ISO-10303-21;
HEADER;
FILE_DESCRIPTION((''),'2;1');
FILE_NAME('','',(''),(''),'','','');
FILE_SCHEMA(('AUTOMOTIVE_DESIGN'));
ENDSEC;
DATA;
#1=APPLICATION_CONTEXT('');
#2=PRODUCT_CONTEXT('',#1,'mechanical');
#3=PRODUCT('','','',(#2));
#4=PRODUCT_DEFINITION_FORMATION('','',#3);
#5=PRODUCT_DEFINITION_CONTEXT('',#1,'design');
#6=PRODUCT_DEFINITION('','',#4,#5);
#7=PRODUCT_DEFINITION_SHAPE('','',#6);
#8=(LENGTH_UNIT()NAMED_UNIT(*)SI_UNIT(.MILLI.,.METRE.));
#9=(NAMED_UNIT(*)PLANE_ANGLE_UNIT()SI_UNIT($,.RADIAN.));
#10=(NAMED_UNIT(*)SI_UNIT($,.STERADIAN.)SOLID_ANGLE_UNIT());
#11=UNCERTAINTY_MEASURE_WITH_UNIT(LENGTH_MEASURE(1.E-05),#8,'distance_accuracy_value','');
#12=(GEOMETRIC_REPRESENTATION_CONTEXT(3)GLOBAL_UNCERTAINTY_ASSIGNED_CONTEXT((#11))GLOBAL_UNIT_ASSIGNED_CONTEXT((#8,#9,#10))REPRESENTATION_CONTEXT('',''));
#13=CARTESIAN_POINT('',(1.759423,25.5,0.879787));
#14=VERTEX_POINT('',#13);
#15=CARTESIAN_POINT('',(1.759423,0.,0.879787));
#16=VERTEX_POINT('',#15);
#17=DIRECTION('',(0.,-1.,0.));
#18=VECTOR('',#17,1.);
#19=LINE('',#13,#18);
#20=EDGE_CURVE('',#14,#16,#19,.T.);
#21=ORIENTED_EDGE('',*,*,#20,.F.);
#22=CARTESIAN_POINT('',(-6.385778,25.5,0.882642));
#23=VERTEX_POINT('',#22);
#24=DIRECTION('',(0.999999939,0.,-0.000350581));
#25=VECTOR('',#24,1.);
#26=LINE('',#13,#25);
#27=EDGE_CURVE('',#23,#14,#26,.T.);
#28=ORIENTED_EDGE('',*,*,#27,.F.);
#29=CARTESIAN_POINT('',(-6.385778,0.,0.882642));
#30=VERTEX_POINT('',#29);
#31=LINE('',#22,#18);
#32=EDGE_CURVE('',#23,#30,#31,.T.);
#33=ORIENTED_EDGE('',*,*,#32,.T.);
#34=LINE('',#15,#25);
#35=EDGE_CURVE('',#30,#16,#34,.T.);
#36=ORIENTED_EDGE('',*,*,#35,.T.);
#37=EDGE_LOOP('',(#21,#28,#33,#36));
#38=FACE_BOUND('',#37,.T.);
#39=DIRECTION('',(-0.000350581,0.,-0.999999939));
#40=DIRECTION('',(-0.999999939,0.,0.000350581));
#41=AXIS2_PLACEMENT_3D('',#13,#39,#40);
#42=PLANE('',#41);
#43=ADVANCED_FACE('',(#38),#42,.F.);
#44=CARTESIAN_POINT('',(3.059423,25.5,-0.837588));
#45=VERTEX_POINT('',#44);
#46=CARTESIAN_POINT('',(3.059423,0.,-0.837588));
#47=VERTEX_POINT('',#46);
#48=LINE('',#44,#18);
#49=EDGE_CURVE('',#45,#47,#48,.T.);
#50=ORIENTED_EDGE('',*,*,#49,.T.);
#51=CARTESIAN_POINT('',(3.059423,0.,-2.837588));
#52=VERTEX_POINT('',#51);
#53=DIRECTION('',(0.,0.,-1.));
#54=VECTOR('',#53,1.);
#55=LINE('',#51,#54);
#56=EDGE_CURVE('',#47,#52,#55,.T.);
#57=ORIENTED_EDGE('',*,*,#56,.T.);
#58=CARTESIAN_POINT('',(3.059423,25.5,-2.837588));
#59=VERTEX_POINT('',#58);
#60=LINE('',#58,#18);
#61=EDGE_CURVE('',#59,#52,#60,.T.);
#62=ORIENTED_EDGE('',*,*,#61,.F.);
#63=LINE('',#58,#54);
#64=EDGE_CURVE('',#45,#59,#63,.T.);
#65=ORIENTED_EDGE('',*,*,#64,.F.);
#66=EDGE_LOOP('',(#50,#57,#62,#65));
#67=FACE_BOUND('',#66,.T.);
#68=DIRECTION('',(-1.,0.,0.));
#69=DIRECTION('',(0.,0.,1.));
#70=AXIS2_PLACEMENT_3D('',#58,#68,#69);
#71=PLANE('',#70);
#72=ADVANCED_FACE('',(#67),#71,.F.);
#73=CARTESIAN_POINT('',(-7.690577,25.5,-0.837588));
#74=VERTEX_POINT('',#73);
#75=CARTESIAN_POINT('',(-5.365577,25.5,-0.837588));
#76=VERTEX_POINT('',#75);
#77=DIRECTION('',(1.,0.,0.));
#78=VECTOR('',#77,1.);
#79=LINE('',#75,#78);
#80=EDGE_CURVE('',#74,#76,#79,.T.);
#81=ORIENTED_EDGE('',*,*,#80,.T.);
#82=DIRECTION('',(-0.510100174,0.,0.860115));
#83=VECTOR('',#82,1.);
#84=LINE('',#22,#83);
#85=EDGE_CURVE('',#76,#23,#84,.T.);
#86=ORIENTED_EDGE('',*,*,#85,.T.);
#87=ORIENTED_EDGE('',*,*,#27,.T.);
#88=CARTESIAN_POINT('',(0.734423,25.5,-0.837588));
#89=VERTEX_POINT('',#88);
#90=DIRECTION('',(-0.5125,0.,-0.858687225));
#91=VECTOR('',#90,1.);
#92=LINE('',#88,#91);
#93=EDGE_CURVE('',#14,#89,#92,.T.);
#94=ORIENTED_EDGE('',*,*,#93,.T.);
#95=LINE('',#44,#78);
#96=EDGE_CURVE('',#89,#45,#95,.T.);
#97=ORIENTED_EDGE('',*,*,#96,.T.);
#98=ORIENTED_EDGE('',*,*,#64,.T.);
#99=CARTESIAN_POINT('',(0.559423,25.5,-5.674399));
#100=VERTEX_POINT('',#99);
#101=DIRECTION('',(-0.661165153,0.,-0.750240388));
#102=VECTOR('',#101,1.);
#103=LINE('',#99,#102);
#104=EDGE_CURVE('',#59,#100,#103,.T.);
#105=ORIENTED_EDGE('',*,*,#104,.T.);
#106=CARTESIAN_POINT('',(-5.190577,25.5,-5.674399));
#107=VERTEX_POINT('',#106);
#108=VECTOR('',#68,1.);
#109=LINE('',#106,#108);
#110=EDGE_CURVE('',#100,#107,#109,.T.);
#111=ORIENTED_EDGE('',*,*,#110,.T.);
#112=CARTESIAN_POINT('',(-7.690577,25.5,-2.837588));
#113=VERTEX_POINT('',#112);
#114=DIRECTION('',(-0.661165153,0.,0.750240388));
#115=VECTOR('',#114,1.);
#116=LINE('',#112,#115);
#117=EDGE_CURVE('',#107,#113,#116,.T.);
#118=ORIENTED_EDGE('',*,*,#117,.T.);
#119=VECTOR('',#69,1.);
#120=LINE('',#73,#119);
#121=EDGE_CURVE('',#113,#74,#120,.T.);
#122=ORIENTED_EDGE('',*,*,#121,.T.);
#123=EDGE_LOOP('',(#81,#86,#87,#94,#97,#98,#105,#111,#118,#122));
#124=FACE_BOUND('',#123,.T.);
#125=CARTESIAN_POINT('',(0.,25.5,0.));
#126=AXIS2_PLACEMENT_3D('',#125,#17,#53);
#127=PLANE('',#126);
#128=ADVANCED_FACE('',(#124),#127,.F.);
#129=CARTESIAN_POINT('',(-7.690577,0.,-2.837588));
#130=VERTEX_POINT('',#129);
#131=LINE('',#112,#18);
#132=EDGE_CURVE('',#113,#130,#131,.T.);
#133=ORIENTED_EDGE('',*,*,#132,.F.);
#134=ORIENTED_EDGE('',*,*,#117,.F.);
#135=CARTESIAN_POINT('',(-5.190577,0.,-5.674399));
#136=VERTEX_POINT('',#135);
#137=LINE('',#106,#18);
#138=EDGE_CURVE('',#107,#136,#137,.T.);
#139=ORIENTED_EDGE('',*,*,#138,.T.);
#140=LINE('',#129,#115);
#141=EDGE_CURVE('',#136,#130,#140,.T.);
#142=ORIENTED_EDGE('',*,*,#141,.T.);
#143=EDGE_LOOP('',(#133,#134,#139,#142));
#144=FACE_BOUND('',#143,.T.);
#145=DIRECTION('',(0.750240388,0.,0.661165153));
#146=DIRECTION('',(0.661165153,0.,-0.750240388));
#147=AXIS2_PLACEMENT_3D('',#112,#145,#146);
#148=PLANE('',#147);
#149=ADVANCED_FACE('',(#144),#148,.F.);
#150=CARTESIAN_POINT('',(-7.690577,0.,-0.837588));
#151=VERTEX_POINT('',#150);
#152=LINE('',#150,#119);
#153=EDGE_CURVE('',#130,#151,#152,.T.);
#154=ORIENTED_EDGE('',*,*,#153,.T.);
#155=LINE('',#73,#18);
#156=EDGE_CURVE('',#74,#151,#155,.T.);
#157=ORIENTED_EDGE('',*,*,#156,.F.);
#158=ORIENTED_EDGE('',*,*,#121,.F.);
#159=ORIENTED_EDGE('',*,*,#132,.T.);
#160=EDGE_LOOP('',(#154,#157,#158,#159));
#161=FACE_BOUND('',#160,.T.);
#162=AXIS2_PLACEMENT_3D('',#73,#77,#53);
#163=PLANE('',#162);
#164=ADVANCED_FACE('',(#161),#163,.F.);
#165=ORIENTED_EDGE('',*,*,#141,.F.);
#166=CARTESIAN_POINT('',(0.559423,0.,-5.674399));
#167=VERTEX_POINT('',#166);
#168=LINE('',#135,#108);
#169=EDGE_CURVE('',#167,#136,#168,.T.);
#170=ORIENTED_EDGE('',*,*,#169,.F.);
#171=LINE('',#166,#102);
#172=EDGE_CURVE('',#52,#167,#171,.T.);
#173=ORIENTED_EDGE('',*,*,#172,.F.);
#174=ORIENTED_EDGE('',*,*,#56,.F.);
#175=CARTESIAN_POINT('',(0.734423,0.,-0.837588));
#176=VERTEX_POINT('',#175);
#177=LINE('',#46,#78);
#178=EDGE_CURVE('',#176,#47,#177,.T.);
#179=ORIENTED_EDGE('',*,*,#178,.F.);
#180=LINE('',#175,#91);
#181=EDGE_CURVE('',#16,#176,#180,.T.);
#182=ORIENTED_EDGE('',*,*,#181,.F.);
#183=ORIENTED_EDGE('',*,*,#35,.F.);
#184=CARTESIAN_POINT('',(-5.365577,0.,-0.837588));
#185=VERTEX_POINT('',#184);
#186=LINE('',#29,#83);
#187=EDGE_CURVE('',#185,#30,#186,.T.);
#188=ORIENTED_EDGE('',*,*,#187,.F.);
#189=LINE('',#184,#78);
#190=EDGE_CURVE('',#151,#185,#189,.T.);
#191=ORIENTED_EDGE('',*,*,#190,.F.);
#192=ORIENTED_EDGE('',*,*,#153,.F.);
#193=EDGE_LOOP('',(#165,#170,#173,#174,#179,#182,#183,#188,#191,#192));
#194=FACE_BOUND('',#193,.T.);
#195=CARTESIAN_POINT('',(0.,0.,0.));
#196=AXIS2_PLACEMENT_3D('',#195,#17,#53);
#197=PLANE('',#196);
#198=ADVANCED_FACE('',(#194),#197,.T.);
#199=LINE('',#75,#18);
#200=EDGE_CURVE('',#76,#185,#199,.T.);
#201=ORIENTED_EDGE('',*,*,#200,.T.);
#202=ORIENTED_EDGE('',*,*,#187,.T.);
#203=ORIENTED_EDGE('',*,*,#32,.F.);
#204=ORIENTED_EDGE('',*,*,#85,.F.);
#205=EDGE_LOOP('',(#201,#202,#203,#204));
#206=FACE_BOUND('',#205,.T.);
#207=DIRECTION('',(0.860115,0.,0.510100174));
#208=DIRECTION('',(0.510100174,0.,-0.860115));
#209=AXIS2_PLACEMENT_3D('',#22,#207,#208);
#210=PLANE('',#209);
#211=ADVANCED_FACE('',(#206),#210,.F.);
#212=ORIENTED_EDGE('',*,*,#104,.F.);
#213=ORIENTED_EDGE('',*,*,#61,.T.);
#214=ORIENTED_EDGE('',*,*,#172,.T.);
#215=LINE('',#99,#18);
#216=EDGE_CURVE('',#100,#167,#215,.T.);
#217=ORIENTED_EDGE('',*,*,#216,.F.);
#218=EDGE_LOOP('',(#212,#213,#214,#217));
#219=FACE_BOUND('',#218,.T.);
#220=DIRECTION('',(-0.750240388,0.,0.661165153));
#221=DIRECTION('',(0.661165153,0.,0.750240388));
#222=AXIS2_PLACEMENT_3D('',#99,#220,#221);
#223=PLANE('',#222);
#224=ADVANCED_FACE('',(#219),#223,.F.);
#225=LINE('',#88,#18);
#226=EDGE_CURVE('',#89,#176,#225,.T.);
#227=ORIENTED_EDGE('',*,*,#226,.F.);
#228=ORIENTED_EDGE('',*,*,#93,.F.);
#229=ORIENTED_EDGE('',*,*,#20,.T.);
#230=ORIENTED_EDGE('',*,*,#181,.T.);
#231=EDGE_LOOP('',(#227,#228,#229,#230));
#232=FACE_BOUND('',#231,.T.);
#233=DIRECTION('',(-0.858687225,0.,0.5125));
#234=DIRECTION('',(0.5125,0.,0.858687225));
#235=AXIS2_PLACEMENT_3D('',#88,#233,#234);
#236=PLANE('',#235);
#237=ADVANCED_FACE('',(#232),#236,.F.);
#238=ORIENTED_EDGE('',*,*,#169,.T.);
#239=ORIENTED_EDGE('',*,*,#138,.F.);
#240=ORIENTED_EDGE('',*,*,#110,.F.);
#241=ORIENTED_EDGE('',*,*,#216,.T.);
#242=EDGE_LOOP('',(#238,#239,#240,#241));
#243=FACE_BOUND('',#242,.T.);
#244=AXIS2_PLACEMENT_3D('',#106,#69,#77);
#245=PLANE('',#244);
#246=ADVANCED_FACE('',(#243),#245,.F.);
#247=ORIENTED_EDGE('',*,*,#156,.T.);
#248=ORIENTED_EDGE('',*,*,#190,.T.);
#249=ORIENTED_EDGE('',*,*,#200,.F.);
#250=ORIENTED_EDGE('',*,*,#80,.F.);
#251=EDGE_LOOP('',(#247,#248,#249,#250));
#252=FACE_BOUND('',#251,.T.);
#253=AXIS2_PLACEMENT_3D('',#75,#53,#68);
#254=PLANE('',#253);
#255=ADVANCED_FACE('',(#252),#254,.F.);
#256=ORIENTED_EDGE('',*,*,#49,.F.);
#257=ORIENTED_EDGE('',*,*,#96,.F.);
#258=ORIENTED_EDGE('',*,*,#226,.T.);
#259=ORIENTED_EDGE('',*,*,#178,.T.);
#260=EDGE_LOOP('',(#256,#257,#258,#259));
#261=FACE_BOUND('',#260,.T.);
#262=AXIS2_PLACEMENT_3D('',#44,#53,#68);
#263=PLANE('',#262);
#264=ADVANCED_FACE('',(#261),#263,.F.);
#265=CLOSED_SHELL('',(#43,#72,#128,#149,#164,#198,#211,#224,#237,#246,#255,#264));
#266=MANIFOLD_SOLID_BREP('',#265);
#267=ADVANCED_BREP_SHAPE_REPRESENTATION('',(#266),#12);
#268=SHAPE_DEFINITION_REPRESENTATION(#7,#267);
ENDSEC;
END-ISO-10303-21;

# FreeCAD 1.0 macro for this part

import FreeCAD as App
import Part
import Sketcher

V = App.Vector


def add_polygon(sketch, points):
    """Adds a closed chain of lines whose ends are joined by coincident constraints."""
    first, n = sketch.GeometryCount, len(points)
    for a, b in zip(points, points[1:] + points[:1]):
        sketch.addGeometry(Part.LineSegment(App.Vector(*a, 0), App.Vector(*b, 0)), False)
    for i in range(n):
        sketch.addConstraint(Sketcher.Constraint("Coincident", first + i, 2, first + (i + 1) % n, 1))

doc = App.newDocument("Part")
params = doc.addObject("Spreadsheet::Sheet", "Params")
for row, (alias, value) in enumerate([
    ("sketch1_height", "2 mm"),
    ("sketch1_length", "2 mm"),
    ("sketch1_width", "5.75 mm"),
    ("pad1_length", "25.5 mm"),
], start=1):
    params.set(f"A{row}", alias)
    params.set(f"B{row}", "=" + value)
    params.setAlias(f"B{row}", alias)

body = doc.addObject("PartDesign::Body", "Body")

# Sketch on XZ plane
sketch1 = body.newObject("Sketcher::SketchObject", "Sketch")
sketch1.AttachmentSupport = (doc.getObject("XZ_Plane"), [""])
sketch1.MapMode = "FlatFace"
add_polygon(sketch1, [(0.6, -5.7), (-5.2, -5.7), (-7.7, -2.8), (-7.7, -0.8), (-5.4, -0.8), (-6.4, 0.9), (1.8, 0.9), (0.7, -0.8), (3.1, -0.8), (3.1, -2.8)])  # lines 0-9
sketch1.addConstraint(Sketcher.Constraint("Horizontal", 0))
sketch1.addConstraint(Sketcher.Constraint("Vertical", 2))
sketch1.addConstraint(Sketcher.Constraint("Horizontal", 3))
sketch1.addConstraint(Sketcher.Constraint("Horizontal", 7))
sketch1.addConstraint(Sketcher.Constraint("Vertical", 8))
sketch1.addConstraint(Sketcher.Constraint("Horizontal", 3, 2, 6, 2))
sketch1.addConstraint(Sketcher.Constraint("Horizontal", 1, 2, 8, 2))
sketch1.addConstraint(Sketcher.Constraint("Equal", 3, 7))
sketch1.addConstraint(Sketcher.Constraint("Equal", 4, 6))
sketch1.addConstraint(Sketcher.Constraint("Equal", 1, 9))
sketch1.addConstraint(Sketcher.Constraint("DistanceY", 2, 1, 2, 2, 2.0))
sketch1.addConstraint(Sketcher.Constraint("Distance", 4, 2.0))
sketch1.addConstraint(Sketcher.Constraint("DistanceX", 0, 2, 0, 1, 5.75))
sketch1.addConstraint(Sketcher.Constraint("DistanceX", 1, 2, 0, 2, 2.5))
sketch1.addConstraint(Sketcher.Constraint("DistanceX", 3, 2, 6, 2, 6.1))
sketch1.addConstraint(Sketcher.Constraint("DistanceX", 5, 2, 7, 2, 1.3))
sketch1.addConstraint(Sketcher.Constraint("Distance", 5, 8.145201))
sketch1.addConstraint(Sketcher.Constraint("DistanceY", 0, 2, -1, 1, 5.674399))
sketch1.addConstraint(Sketcher.Constraint("DistanceY", 0, 2, 1, 2, 2.836812))
sketch1.addConstraint(Sketcher.Constraint("DistanceX", 0, 2, -1, 1, 5.190577))
sketch1.setExpression("Constraints[20]", "Params.sketch1_height")
sketch1.setExpression("Constraints[21]", "Params.sketch1_length")
sketch1.setExpression("Constraints[22]", "Params.sketch1_width")
pad1 = body.newObject("PartDesign::Pad", "Pad")
pad1.Profile = sketch1
pad1.setExpression("Length", "Params.pad1_length")
pad1.Reversed = True

doc.recompute()
